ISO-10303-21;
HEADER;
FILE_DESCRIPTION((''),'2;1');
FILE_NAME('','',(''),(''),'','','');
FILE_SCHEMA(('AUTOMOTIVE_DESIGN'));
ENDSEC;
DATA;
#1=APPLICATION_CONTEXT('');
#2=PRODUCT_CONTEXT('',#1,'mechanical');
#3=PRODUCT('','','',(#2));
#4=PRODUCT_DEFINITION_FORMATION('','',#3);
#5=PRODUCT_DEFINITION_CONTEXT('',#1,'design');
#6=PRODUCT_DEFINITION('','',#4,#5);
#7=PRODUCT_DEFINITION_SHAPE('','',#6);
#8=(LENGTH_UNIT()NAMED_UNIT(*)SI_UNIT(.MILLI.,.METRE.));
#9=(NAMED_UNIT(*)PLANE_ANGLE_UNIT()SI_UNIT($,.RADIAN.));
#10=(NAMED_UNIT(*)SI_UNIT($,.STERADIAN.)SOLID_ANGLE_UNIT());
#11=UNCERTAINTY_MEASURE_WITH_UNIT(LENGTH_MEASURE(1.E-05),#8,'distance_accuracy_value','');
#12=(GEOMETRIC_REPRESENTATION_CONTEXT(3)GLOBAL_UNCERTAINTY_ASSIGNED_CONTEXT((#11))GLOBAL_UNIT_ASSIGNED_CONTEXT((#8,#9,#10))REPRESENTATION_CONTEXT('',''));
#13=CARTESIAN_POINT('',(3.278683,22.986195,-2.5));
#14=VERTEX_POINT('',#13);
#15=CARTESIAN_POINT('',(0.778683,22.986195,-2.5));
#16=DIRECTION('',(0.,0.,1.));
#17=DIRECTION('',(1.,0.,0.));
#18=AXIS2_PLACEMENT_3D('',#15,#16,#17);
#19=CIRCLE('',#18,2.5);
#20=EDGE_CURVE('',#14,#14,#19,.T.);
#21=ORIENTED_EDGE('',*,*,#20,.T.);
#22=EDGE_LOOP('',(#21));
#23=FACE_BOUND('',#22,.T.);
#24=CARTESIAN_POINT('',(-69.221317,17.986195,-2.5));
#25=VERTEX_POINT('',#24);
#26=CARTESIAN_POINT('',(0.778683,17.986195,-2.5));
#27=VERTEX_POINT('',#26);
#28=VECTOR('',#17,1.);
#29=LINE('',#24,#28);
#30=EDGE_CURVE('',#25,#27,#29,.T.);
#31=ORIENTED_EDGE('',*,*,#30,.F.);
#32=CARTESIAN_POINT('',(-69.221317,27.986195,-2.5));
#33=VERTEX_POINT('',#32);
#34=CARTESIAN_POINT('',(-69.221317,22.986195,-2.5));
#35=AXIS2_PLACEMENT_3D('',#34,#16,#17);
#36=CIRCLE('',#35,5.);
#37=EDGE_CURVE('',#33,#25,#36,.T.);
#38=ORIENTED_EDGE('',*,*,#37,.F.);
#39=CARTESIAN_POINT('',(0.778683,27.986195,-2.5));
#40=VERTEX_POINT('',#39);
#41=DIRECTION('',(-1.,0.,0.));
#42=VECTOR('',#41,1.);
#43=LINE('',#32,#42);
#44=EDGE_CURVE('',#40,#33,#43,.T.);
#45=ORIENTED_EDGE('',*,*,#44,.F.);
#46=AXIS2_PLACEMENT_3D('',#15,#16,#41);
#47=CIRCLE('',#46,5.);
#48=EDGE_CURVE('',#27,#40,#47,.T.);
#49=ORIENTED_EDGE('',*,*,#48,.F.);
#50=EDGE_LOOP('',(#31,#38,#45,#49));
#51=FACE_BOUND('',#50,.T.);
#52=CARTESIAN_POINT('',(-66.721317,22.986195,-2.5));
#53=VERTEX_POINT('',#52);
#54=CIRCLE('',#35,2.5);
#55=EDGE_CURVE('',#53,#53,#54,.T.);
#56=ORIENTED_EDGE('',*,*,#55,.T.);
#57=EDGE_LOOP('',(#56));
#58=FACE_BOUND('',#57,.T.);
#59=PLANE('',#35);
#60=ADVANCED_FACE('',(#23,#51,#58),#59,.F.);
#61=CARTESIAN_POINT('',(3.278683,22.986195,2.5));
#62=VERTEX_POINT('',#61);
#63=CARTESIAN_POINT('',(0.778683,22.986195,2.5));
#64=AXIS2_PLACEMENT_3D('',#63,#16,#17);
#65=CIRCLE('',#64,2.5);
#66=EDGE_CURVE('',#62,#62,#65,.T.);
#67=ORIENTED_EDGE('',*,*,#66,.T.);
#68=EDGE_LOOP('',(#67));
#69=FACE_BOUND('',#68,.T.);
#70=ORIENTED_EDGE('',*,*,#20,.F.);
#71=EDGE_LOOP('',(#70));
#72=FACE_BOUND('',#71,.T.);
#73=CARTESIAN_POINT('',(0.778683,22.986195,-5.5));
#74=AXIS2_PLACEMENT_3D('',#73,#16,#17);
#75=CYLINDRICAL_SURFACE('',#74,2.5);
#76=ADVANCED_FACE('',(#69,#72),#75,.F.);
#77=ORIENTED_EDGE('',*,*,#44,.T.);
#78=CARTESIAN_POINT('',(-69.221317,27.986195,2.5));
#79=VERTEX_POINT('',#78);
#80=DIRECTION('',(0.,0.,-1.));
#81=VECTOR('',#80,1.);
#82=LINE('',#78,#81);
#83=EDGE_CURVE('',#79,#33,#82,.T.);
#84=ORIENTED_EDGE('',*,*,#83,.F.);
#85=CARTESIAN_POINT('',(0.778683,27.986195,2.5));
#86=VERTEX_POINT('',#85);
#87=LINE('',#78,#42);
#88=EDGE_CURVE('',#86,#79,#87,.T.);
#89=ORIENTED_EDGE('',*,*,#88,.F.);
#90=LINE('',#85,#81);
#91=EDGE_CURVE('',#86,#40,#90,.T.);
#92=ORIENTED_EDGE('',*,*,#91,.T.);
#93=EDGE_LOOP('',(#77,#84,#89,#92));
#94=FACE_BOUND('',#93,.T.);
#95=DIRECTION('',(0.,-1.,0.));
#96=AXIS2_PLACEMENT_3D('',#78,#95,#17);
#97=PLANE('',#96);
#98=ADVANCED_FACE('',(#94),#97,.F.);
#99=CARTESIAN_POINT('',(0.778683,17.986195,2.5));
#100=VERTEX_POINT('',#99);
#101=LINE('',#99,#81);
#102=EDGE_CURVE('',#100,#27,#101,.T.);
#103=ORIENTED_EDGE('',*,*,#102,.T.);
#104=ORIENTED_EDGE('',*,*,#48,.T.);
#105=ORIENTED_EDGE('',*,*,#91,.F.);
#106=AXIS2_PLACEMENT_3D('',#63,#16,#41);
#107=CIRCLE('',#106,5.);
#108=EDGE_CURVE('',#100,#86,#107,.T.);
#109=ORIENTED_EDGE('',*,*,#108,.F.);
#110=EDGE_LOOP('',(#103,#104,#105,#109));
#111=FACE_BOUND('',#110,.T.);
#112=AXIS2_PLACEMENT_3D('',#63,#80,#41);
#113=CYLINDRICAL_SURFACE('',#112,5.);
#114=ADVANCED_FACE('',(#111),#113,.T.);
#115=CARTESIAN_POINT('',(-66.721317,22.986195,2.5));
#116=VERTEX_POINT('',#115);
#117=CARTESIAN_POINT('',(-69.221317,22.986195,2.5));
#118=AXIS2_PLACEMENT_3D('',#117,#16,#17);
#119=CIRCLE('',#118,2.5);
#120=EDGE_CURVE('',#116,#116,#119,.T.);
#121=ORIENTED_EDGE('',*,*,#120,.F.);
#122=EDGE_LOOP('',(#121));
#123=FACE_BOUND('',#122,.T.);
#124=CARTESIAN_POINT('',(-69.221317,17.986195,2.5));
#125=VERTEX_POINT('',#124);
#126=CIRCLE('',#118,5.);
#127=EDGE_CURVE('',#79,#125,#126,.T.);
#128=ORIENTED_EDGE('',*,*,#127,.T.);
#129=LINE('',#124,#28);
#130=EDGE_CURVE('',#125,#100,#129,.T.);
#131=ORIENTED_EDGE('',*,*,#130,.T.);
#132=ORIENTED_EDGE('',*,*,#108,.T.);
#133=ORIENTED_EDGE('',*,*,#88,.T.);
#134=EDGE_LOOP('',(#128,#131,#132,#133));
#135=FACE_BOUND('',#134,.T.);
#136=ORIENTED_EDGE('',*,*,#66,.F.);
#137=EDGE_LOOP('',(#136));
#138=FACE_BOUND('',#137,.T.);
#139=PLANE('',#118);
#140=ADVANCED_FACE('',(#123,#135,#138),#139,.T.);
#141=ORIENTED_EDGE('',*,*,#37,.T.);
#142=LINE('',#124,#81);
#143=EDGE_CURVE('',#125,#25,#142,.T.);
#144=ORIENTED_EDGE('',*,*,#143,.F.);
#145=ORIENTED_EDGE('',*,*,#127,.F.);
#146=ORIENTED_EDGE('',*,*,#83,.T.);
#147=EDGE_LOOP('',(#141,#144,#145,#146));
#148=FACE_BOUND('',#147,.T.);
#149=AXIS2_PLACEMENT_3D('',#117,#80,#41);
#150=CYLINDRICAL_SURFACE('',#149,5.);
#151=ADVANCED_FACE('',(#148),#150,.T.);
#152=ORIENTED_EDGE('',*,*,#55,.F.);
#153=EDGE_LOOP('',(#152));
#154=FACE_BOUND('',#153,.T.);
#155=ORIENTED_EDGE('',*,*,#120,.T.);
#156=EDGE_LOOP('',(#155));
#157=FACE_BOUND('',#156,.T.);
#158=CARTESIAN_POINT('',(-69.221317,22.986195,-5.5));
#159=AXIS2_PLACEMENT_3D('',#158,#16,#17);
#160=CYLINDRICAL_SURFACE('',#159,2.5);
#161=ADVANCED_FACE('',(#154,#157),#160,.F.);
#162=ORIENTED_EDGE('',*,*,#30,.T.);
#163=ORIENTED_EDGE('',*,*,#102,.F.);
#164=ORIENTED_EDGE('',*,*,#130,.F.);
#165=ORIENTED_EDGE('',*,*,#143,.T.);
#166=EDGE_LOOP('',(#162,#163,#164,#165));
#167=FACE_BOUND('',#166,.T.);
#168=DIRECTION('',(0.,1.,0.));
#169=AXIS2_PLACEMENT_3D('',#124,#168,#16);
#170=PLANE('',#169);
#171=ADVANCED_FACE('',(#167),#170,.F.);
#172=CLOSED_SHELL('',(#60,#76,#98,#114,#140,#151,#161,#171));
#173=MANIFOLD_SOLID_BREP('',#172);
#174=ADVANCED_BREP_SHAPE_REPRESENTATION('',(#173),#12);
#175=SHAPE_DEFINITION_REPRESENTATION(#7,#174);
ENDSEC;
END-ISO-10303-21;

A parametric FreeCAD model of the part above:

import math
import FreeCAD as App
import Part
import Sketcher

doc = App.newDocument("Part")
params = doc.addObject("Spreadsheet::Sheet", "Params")
for row, (alias, value) in enumerate([
    ("sketch1_radius", "5 mm"),
    ("sketch1_width", "70 mm"),
    ("pad1_length", "5 mm"),
    ("sketch2_diameter", "5 mm"),
    ("pocket1_length", "8 mm"),
    ("sketch3_diameter", "5 mm"),
    ("pocket2_length", "8 mm"),
], start=1):
    params.set(f"A{row}", alias)
    params.set(f"B{row}", "=" + value)
    params.setAlias(f"B{row}", alias)

body = doc.addObject("PartDesign::Body", "Body")

sketch1 = body.newObject("Sketcher::SketchObject", "Sketch")
sketch1.AttachmentSupport = (doc.getObject("XY_Plane"), [""])
sketch1.MapMode = "FlatFace"
sketch1.addGeometry([
    Part.LineSegment(App.Vector(1, 28, 0), App.Vector(-69, 28, 0)),
    Part.ArcOfCircle(Part.Circle(App.Vector(-69, 23, 0), App.Vector(0, 0, 1), 5), math.radians(90), math.radians(270)),
    Part.LineSegment(App.Vector(-69, 18, 0), App.Vector(1, 18, 0)),
    Part.ArcOfCircle(Part.Circle(App.Vector(1, 23, 0), App.Vector(0, 0, 1), 5), math.radians(-90), math.radians(90)),
], False)
sketch1.addConstraint([
    Sketcher.Constraint("Tangent", 0, 2, 1, 1),
    Sketcher.Constraint("Tangent", 1, 2, 2, 1),
    Sketcher.Constraint("Tangent", 2, 2, 3, 1),
    Sketcher.Constraint("Tangent", 3, 2, 0, 1),
    Sketcher.Constraint("Horizontal", 0),
    Sketcher.Constraint("Horizontal", 2),
    Sketcher.Constraint("Radius", 1, 5.0),
    Sketcher.Constraint("DistanceX", 0, 2, 0, 1, 70.0),
    Sketcher.Constraint("DistanceX", 1, 3, -1, 1, 69.221317),
    Sketcher.Constraint("DistanceY", -1, 1, 1, 3, 22.986195),
])
sketch1.setExpression("Constraints[6]", "Params.sketch1_radius")
sketch1.setExpression("Constraints[7]", "Params.sketch1_width")
pad1 = body.newObject("PartDesign::Pad", "Pad")
pad1.Profile = sketch1
pad1.setExpression("Length", "Params.pad1_length")
pad1.Midplane = True

sketch2 = body.newObject("Sketcher::SketchObject", "Sketch001")
sketch2.AttachmentSupport = (doc.getObject("XY_Plane"), [""])
sketch2.MapMode = "FlatFace"
sketch2.AttachmentOffset = App.Placement(App.Vector(0, 0, 2.5), App.Rotation())
sketch2.addGeometry(Part.Circle(App.Vector(-69.2, 23, 0), App.Vector(0, 0, 1), 2.5), False)
sketch2.addConstraint([
    Sketcher.Constraint("Diameter", 0, 5.0),
    Sketcher.Constraint("DistanceX", 0, 3, -1, 1, 69.221317),
    Sketcher.Constraint("DistanceY", -1, 1, 0, 3, 22.986195),
])
sketch2.setExpression("Constraints[0]", "Params.sketch2_diameter")
pocket1 = body.newObject("PartDesign::Pocket", "Pocket")
pocket1.Profile = sketch2
pocket1.setExpression("Length", "Params.pocket1_length")

sketch3 = body.newObject("Sketcher::SketchObject", "Sketch002")
sketch3.AttachmentSupport = (doc.getObject("XY_Plane"), [""])
sketch3.MapMode = "FlatFace"
sketch3.AttachmentOffset = App.Placement(App.Vector(0, 0, 2.5), App.Rotation())
sketch3.addGeometry(Part.Circle(App.Vector(0.8, 23, 0), App.Vector(0, 0, 1), 2.5), False)
sketch3.addConstraint([
    Sketcher.Constraint("Diameter", 0, 5.0),
    Sketcher.Constraint("DistanceX", -1, 1, 0, 3, 0.778683),
    Sketcher.Constraint("DistanceY", -1, 1, 0, 3, 22.986195),
])
sketch3.setExpression("Constraints[0]", "Params.sketch3_diameter")
pocket2 = body.newObject("PartDesign::Pocket", "Pocket001")
pocket2.Profile = sketch3
pocket2.setExpression("Length", "Params.pocket2_length")

doc.recompute()
